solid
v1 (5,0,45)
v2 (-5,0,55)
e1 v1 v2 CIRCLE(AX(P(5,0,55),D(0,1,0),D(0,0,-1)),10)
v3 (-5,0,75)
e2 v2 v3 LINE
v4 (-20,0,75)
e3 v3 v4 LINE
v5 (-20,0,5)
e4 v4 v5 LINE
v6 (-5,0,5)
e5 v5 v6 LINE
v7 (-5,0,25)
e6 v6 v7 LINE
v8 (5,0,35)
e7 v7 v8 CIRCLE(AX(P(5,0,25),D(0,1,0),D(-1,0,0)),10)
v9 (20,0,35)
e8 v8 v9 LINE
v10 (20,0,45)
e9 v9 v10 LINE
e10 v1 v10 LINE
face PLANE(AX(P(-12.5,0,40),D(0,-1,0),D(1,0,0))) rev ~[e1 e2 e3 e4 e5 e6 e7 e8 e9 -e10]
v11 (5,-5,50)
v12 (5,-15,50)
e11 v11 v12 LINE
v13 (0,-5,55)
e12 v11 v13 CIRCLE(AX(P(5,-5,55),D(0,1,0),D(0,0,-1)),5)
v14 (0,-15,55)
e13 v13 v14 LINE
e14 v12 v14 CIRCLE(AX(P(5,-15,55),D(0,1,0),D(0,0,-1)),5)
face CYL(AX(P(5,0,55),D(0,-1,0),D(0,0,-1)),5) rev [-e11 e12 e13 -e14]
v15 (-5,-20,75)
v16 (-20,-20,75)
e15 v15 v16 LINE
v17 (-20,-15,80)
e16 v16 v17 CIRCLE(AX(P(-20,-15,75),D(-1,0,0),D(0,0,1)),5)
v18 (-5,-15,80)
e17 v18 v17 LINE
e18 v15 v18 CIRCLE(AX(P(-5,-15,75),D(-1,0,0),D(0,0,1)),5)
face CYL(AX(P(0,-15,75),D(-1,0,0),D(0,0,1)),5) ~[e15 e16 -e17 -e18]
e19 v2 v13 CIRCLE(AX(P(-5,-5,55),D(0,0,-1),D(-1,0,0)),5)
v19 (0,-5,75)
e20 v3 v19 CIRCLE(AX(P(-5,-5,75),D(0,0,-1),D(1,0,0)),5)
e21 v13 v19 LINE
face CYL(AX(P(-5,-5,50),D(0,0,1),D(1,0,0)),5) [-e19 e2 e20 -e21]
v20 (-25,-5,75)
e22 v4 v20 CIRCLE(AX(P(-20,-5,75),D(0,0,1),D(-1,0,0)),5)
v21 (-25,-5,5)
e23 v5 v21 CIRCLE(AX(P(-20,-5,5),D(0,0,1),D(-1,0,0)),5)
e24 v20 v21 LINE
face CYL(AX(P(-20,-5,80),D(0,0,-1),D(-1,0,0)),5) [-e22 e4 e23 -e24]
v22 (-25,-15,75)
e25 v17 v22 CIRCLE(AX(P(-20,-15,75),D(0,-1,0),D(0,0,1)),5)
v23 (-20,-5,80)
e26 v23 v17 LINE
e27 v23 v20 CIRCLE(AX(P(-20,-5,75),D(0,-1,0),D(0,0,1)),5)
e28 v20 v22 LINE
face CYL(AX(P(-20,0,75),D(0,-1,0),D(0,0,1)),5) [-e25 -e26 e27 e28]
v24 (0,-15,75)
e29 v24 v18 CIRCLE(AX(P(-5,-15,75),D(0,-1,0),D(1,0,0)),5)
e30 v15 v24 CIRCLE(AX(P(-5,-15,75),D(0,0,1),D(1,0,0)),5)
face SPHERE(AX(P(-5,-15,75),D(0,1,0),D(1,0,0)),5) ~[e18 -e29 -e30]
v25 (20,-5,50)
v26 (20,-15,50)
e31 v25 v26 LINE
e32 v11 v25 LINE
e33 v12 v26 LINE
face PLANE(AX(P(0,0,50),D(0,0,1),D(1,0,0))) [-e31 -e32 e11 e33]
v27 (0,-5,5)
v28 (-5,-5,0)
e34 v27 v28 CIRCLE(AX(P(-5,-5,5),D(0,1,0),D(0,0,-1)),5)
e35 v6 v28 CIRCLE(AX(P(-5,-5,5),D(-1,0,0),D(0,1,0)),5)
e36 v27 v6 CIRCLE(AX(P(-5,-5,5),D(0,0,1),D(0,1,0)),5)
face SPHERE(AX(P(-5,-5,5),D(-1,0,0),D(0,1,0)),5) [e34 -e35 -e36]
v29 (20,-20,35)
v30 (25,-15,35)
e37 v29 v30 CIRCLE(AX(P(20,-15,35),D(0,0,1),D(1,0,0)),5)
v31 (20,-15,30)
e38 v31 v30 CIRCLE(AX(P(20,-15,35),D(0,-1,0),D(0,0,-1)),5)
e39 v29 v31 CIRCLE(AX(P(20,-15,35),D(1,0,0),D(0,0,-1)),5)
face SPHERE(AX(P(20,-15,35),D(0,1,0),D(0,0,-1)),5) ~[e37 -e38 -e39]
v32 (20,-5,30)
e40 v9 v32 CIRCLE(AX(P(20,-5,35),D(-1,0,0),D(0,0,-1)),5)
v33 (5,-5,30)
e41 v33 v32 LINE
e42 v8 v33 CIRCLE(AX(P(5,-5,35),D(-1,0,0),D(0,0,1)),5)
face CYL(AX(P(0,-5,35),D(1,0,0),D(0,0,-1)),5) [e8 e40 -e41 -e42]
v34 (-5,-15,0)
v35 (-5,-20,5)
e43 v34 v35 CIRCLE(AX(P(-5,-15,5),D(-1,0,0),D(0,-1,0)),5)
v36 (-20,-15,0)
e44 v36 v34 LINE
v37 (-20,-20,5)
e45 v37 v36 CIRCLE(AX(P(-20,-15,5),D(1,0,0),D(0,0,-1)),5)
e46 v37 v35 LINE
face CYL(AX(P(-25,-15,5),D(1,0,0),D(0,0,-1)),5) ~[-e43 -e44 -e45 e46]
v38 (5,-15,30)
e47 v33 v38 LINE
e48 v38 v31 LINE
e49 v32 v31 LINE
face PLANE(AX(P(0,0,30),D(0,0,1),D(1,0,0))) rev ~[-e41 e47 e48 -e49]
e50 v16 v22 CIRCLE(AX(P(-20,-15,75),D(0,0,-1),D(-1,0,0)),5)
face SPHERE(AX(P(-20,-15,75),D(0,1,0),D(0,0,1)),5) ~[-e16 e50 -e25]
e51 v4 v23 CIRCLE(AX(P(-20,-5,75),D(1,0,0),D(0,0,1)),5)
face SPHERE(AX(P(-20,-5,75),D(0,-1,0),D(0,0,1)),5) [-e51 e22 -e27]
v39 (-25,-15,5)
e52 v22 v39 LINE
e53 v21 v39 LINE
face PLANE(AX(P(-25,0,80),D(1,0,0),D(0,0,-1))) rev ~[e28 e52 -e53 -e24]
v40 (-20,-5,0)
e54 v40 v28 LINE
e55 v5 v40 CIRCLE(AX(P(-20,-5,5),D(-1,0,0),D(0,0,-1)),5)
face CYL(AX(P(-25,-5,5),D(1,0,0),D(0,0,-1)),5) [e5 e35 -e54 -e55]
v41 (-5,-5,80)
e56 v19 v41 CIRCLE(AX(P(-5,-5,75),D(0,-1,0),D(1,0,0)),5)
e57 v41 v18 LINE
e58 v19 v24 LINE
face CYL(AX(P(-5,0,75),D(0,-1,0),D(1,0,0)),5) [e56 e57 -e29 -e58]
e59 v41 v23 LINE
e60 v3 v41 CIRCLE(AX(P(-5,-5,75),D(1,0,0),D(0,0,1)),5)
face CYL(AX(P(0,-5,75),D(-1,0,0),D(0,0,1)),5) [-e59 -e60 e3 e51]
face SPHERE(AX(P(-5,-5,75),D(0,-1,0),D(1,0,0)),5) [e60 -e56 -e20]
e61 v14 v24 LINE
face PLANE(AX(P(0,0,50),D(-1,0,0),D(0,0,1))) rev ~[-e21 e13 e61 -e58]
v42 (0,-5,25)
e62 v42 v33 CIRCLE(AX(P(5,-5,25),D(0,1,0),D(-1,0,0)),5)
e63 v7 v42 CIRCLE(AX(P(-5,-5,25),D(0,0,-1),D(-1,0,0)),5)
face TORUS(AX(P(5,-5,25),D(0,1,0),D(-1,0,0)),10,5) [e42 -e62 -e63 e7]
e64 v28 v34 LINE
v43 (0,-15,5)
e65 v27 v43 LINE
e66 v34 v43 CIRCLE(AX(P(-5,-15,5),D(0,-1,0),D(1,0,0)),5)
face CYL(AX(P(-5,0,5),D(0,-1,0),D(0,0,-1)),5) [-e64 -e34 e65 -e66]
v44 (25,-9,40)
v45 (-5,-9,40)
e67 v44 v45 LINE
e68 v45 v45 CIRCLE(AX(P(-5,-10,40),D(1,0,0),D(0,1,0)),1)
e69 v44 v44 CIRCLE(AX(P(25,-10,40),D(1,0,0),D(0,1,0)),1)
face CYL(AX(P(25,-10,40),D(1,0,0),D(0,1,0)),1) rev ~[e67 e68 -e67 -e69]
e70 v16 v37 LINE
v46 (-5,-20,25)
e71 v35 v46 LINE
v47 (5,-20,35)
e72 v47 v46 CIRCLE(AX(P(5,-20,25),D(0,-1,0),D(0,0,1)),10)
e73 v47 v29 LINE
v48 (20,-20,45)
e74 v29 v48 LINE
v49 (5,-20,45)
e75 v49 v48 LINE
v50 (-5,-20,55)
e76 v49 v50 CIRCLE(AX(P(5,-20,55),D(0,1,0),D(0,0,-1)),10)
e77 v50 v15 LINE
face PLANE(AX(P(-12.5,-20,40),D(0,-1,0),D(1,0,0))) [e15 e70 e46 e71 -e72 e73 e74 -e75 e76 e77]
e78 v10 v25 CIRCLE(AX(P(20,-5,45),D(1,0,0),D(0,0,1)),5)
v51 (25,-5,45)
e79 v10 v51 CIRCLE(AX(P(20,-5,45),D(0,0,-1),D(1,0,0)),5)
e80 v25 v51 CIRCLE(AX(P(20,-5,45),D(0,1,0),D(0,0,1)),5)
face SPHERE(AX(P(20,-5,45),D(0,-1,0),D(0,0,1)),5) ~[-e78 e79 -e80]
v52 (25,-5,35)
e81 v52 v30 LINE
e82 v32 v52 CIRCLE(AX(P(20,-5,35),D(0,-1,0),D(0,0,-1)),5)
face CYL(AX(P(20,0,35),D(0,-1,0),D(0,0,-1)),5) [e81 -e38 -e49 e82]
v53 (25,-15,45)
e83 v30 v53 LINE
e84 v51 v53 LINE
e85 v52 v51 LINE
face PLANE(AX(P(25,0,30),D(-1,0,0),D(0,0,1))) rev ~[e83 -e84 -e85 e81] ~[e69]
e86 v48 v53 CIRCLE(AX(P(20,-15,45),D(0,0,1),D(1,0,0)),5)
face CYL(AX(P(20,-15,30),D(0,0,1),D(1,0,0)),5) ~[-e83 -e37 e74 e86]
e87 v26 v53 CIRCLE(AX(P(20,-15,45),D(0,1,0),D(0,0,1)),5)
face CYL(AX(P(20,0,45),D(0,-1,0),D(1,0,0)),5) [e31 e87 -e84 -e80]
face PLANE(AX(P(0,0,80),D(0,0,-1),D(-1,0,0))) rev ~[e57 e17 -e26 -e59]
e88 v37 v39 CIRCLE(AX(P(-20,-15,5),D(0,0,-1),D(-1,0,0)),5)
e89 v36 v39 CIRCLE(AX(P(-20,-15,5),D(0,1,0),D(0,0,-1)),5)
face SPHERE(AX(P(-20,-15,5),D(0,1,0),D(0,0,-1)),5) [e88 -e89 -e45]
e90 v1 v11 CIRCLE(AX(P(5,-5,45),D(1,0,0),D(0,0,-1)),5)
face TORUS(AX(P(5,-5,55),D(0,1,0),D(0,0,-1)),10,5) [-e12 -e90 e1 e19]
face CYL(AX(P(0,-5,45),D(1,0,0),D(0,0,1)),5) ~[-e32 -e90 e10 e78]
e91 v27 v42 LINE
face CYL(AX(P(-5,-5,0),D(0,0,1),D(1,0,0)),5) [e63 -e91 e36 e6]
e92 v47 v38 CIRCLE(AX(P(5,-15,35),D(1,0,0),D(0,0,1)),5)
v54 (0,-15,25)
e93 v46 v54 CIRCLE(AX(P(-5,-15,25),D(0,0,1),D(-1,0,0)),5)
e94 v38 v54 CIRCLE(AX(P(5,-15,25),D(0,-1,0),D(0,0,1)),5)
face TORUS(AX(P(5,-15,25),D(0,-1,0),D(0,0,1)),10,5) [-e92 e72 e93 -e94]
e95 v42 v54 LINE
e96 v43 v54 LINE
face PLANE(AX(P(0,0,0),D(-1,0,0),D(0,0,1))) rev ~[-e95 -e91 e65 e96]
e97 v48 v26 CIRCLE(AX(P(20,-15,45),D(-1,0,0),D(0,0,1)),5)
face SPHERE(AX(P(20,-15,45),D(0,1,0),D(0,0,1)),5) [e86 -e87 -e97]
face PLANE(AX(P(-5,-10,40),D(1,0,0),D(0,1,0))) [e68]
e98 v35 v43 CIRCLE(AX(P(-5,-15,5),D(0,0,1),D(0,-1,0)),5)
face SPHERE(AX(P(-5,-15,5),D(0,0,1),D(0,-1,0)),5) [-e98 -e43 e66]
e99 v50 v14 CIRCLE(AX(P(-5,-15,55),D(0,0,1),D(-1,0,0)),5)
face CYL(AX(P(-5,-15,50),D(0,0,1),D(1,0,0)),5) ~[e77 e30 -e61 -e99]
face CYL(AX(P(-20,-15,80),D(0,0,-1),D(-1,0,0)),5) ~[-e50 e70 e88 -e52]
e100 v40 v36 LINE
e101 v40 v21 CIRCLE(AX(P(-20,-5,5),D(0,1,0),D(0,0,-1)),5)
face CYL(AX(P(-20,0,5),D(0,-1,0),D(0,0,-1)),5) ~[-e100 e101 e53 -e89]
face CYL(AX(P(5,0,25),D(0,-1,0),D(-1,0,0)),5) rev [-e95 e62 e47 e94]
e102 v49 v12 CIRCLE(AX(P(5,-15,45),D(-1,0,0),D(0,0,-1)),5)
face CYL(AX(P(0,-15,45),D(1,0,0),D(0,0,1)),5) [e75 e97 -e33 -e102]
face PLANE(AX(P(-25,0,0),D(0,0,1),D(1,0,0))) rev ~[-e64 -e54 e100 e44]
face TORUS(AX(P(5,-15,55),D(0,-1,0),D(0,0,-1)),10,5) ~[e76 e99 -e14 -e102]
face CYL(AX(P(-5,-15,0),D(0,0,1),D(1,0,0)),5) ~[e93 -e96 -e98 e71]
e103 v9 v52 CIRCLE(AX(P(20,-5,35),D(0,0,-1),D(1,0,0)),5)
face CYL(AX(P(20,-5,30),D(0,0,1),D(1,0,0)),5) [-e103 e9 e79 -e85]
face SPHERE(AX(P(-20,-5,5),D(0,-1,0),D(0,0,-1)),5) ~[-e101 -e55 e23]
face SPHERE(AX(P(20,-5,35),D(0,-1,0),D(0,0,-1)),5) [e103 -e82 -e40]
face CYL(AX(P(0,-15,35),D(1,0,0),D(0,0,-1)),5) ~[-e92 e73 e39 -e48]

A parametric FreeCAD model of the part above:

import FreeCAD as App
import Part
import Sketcher

V = App.Vector
Q = App.Units.Quantity

doc = App.newDocument("Part")
body = doc.addObject("PartDesign::Body", "Body")

# Sketch on XZ plane
sketch1 = doc.addObject("Sketcher::SketchObject", "Sketch")
body.addObject(sketch1)
sketch1.AttachmentSupport = (doc.XZ_Plane, [""])
sketch1.MapMode = "FlatFace"
sketch1.addGeometry(Part.LineSegment(V(-25, 0, 0), V(0, 0, 0)), False)
sketch1.addGeometry(Part.LineSegment(V(0, 0, 0), V(0, 30, 0)), False)
sketch1.addGeometry(Part.LineSegment(V(0, 30, 0), V(25, 30, 0)), False)
sketch1.addGeometry(Part.LineSegment(V(25, 30, 0), V(25, 50, 0)), False)
sketch1.addGeometry(Part.LineSegment(V(25, 50, 0), V(0, 50, 0)), False)
sketch1.addGeometry(Part.LineSegment(V(0, 50, 0), V(0, 80, 0)), False)
sketch1.addGeometry(Part.LineSegment(V(0, 80, 0), V(-25, 80, 0)), False)
sketch1.addGeometry(Part.LineSegment(V(-25, 80, 0), V(-25, 0, 0)), False)
sketch1.addConstraint(Sketcher.Constraint("Coincident", 0, 2, 1, 1))
sketch1.addConstraint(Sketcher.Constraint("Coincident", 1, 2, 2, 1))
sketch1.addConstraint(Sketcher.Constraint("Coincident", 2, 2, 3, 1))
sketch1.addConstraint(Sketcher.Constraint("Coincident", 3, 2, 4, 1))
sketch1.addConstraint(Sketcher.Constraint("Coincident", 4, 2, 5, 1))
sketch1.addConstraint(Sketcher.Constraint("Coincident", 5, 2, 6, 1))
sketch1.addConstraint(Sketcher.Constraint("Coincident", 6, 2, 7, 1))
sketch1.addConstraint(Sketcher.Constraint("Coincident", 7, 2, 0, 1))
sketch1.addConstraint(Sketcher.Constraint("Horizontal", 0))
sketch1.addConstraint(Sketcher.Constraint("Vertical", 1))
sketch1.addConstraint(Sketcher.Constraint("Horizontal", 2))
sketch1.addConstraint(Sketcher.Constraint("Vertical", 3))
sketch1.addConstraint(Sketcher.Constraint("Horizontal", 4))
sketch1.addConstraint(Sketcher.Constraint("Vertical", 5))
sketch1.addConstraint(Sketcher.Constraint("Horizontal", 6))
sketch1.addConstraint(Sketcher.Constraint("Vertical", 7))
sketch1.addConstraint(Sketcher.Constraint("Coincident", 0, 2, -1, 1))
sketch1.addConstraint(Sketcher.Constraint("PointOnObject", 4, 2, -2))
sketch1.addConstraint(Sketcher.Constraint("Equal", 0, 2))
sketch1.addConstraint(Sketcher.Constraint("Equal", 1, 5))
sketch1.addConstraint(Sketcher.Constraint("DistanceX", 0, 1, 0, 2, Q("25 mm")))
sketch1.addConstraint(Sketcher.Constraint("DistanceY", 1, 1, 1, 2, Q("30 mm")))
sketch1.addConstraint(Sketcher.Constraint("DistanceY", 3, 1, 3, 2, Q("20 mm")))
pad1 = doc.addObject("PartDesign::Pad", "Pad")
body.addObject(pad1)
pad1.Profile = sketch1
pad1.Length = 20
doc.recompute()

fillet = doc.addObject("PartDesign::Fillet", "Fillet")
body.addObject(fillet)
fillet.Base = (pad1, ["Edge1"])
fillet.UseAllEdges = True
fillet.Radius = 5

# Sketch on YZ plane
sketch2 = doc.addObject("Sketcher::SketchObject", "Sketch001")
body.addObject(sketch2)
sketch2.AttachmentSupport = (doc.YZ_Plane, [""])
sketch2.MapMode = "FlatFace"
sketch2.AttachmentOffset = App.Placement(V(0, 0, 25), App.Rotation())
sketch2.addGeometry(Part.Circle(V(-10, 40, 0), V(0, 0, 1), 1), False)
sketch2.addConstraint(Sketcher.Constraint("Diameter", 0, Q("2 mm")))
sketch2.addConstraint(Sketcher.Constraint("DistanceX", 0, 3, -1, 1, Q("10 mm")))
sketch2.addConstraint(Sketcher.Constraint("DistanceY", -1, 1, 0, 3, Q("40 mm")))
pocket1 = doc.addObject("PartDesign::Pocket", "Pocket")
body.addObject(pocket1)
pocket1.Profile = sketch2
pocket1.Length = 30

doc.recompute()
